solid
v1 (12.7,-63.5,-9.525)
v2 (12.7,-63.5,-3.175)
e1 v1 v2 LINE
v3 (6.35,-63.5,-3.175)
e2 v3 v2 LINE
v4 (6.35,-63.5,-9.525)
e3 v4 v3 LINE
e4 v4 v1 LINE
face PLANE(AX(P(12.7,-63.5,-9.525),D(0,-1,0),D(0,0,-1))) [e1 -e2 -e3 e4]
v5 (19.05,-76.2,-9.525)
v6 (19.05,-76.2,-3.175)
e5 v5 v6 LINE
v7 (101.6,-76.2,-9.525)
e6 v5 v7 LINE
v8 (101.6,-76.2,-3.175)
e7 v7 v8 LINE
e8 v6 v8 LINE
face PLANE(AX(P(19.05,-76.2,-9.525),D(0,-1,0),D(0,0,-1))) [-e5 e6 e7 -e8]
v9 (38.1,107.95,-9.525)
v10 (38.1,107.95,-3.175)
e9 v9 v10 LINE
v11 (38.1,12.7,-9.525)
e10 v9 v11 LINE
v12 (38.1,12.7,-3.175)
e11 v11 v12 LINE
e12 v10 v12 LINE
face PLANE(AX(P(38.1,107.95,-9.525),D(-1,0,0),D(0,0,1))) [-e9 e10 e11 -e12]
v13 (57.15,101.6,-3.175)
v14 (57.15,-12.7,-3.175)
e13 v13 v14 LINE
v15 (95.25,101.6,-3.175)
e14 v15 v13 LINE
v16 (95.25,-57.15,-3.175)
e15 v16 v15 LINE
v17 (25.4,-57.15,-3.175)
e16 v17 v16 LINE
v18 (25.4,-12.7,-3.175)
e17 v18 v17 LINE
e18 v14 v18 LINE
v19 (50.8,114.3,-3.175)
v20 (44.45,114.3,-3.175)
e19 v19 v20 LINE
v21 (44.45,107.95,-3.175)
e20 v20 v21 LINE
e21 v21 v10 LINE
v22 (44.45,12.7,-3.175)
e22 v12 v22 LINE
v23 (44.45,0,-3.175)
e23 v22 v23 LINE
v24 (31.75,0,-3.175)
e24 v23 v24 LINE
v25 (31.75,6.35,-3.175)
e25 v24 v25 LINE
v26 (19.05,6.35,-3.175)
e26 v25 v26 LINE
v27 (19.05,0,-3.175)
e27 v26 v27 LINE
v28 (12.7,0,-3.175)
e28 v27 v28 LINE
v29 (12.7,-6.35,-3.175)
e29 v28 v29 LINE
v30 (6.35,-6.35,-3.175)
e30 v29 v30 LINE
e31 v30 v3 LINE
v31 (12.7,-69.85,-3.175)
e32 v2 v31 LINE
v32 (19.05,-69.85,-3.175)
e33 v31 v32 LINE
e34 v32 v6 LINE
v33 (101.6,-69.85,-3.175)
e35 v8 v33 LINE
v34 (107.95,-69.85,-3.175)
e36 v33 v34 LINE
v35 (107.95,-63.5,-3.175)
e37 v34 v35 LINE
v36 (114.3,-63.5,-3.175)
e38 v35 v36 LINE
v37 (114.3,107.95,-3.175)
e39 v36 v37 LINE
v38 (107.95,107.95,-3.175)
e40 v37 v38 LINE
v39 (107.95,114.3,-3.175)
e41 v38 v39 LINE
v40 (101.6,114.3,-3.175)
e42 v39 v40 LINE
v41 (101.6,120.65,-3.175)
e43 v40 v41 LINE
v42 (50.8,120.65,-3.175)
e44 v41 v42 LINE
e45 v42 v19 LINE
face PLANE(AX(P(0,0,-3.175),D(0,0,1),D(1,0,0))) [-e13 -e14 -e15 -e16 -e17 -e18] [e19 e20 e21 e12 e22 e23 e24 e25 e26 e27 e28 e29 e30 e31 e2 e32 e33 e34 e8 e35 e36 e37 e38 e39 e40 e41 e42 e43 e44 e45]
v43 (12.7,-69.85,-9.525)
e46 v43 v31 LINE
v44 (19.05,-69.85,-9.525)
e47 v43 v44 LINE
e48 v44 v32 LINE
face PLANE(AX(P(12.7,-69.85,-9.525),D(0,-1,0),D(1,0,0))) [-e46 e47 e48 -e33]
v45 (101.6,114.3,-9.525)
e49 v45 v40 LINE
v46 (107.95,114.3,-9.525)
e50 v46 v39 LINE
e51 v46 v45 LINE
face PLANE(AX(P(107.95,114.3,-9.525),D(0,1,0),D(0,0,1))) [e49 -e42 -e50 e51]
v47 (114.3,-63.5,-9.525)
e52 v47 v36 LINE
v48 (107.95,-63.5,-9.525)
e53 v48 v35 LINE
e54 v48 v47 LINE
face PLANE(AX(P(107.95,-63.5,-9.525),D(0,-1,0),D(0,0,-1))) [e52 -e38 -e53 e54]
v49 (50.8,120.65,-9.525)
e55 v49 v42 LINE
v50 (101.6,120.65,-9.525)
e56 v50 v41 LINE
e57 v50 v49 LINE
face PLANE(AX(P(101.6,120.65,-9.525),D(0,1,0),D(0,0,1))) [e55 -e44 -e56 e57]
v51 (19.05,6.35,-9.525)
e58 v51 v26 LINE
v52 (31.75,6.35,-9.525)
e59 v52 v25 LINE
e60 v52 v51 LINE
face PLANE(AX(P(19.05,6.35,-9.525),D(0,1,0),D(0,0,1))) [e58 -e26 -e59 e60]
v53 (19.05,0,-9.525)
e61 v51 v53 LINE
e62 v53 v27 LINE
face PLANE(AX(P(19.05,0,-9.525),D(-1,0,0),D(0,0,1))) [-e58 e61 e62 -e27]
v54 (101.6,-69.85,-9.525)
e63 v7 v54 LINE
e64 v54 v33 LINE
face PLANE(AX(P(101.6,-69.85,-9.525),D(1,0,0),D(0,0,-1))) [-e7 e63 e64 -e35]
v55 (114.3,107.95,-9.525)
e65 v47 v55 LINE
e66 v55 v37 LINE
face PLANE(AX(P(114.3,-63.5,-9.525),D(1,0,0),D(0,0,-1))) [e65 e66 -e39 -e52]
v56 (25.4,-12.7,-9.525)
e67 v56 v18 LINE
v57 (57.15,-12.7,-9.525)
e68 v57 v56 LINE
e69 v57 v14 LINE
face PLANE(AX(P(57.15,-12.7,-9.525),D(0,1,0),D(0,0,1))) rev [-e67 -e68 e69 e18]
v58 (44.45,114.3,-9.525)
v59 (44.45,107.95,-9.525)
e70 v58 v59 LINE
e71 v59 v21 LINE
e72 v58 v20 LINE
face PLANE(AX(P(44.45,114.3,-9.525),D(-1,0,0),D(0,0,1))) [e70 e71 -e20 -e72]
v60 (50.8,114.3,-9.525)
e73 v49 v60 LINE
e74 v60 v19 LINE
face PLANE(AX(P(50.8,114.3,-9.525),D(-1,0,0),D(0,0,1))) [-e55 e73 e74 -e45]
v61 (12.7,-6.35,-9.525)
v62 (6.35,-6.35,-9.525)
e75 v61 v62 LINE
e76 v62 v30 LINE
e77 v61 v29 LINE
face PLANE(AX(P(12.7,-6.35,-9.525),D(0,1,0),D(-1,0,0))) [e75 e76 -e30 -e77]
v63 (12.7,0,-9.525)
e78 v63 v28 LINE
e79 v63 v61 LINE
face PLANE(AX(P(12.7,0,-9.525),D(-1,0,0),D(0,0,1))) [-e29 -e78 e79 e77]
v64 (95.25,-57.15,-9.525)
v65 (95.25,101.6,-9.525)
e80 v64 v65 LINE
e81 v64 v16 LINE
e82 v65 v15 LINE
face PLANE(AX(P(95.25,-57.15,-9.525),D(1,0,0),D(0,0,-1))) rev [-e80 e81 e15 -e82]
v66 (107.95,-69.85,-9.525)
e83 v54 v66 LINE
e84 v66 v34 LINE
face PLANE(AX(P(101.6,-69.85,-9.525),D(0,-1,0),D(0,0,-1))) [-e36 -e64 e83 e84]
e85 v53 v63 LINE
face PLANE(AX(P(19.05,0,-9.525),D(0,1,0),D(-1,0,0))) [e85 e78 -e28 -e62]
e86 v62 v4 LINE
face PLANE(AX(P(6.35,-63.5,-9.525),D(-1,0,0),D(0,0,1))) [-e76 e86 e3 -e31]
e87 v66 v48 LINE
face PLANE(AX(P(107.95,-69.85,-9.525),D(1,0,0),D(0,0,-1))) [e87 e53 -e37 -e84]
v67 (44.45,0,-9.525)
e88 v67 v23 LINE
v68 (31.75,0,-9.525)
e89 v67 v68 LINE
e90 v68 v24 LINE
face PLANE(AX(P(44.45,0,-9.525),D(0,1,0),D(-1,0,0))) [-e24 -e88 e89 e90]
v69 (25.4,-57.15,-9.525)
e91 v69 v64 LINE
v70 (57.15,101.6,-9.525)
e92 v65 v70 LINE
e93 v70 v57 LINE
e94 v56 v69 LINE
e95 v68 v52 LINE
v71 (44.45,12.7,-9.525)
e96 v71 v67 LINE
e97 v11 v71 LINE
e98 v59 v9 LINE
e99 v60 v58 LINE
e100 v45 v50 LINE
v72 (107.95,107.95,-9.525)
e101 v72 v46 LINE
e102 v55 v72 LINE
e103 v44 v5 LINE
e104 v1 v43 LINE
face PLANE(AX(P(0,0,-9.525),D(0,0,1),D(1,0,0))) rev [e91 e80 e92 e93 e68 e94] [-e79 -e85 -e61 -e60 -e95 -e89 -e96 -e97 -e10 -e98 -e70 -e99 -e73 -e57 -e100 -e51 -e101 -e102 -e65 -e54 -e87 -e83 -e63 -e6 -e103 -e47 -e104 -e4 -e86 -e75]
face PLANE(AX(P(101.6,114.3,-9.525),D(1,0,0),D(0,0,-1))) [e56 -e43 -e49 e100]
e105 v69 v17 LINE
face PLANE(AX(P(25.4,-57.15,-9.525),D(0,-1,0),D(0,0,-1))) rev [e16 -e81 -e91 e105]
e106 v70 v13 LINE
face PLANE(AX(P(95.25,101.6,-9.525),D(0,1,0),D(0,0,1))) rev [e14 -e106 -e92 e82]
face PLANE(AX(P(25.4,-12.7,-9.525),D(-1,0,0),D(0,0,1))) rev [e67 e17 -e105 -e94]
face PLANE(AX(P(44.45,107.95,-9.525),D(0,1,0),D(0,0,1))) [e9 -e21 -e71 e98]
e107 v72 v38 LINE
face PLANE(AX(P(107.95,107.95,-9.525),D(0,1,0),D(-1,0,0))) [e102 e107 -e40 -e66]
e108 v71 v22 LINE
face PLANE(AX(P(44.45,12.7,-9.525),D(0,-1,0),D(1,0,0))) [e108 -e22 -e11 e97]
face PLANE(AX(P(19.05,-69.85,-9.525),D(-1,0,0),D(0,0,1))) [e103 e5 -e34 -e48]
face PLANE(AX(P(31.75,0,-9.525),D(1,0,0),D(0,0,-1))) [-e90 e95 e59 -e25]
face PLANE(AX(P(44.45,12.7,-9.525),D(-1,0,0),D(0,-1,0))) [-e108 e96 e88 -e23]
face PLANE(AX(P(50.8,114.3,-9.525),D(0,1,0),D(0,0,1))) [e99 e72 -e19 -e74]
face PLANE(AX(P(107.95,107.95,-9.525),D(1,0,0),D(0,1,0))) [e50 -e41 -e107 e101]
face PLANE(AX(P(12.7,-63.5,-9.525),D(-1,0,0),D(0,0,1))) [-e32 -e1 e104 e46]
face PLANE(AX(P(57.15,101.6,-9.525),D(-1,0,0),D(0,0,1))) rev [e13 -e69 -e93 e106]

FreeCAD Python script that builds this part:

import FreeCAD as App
import Part
import Sketcher

V = App.Vector
Q = App.Units.Quantity


def add_polygon(sketch, points):
    """Adds a closed chain of lines whose ends are joined by coincident constraints."""
    first, n = sketch.GeometryCount, len(points)
    for a, b in zip(points, points[1:] + points[:1]):
        sketch.addGeometry(Part.LineSegment(App.Vector(*a, 0), App.Vector(*b, 0)), False)
    for i in range(n):
        sketch.addConstraint(Sketcher.Constraint("Coincident", first + i, 2, first + (i + 1) % n, 1))

doc = App.newDocument("Part")
body = doc.addObject("PartDesign::Body", "Body")

sketch1 = body.newObject("Sketcher::SketchObject", "Sketch")
sketch1.AttachmentSupport = (doc.getObject("XY_Plane"), [""])
sketch1.MapMode = "FlatFace"
sketch1.AttachmentOffset = App.Placement(V(0, 0, -0.125 * 25.4), App.Rotation())
add_polygon(sketch1, [(12.7, -69.85), (19.05, -69.85), (19.05, -76.2), (101.6, -76.2), (101.6, -69.85), (107.95, -69.85), (107.95, -63.5), (114.3, -63.5), (114.3, 107.95), (107.95, 107.95), (107.95, 114.3), (101.6, 114.3), (101.6, 120.65), (50.8, 120.65), (50.8, 114.3), (44.45, 114.3), (44.45, 107.95), (38.1, 107.95), (38.1, 12.7), (44.45, 12.7), (44.45, 0), (31.75, 0), (31.75, 6.35), (19.05, 6.35), (19.05, 0), (12.7, 0), (12.7, -6.35), (6.35, -6.35), (6.35, -63.5), (12.7, -63.5)])
sketch1.addConstraint([
    Sketcher.Constraint("Horizontal", 0),
    Sketcher.Constraint("Vertical", 1),
    Sketcher.Constraint("Horizontal", 2),
    Sketcher.Constraint("Vertical", 3),
    Sketcher.Constraint("Horizontal", 4),
    Sketcher.Constraint("Vertical", 5),
    Sketcher.Constraint("Horizontal", 6),
    Sketcher.Constraint("Vertical", 7),
    Sketcher.Constraint("Horizontal", 8),
    Sketcher.Constraint("Vertical", 9),
    Sketcher.Constraint("Horizontal", 10),
    Sketcher.Constraint("Vertical", 11),
    Sketcher.Constraint("Horizontal", 12),
    Sketcher.Constraint("Vertical", 13),
    Sketcher.Constraint("Horizontal", 14),
    Sketcher.Constraint("Vertical", 15),
    Sketcher.Constraint("Horizontal", 16),
    Sketcher.Constraint("Vertical", 17),
    Sketcher.Constraint("Horizontal", 18),
    Sketcher.Constraint("Vertical", 19),
    Sketcher.Constraint("Horizontal", 20),
    Sketcher.Constraint("Vertical", 21),
    Sketcher.Constraint("Horizontal", 22),
    Sketcher.Constraint("Vertical", 23),
    Sketcher.Constraint("Horizontal", 24),
    Sketcher.Constraint("Vertical", 25),
    Sketcher.Constraint("Horizontal", 26),
    Sketcher.Constraint("Vertical", 27),
    Sketcher.Constraint("Horizontal", 28),
    Sketcher.Constraint("Vertical", 29),
    Sketcher.Constraint("PointOnObject", 19, 2, -1),
    Sketcher.Constraint("PointOnObject", 23, 2, -1),
    Sketcher.Constraint("Horizontal", 0, 2, 3, 2),
    Sketcher.Constraint("Horizontal", 10, 2, 13, 2),
    Sketcher.Constraint("Horizontal", 8, 2, 15, 2),
    Sketcher.Constraint("Horizontal", 6, 2, 27, 2),
    Sketcher.Constraint("Vertical", 5, 2, 8, 2),
    Sketcher.Constraint("Vertical", 3, 2, 10, 2),
    Sketcher.Constraint("Vertical", 15, 2, 18, 2),
    Sketcher.Constraint("Vertical", 1, 2, 22, 2),
    Sketcher.Constraint("Vertical", 25, 2, 28, 2),
    Sketcher.Constraint("Equal", 0, 4),
    Sketcher.Constraint("Equal", 4, 6),
    Sketcher.Constraint("Equal", 10, 14),
    Sketcher.Constraint("Equal", 14, 16),
    Sketcher.Constraint("Equal", 20, 22),
    Sketcher.Constraint("Equal", 24, 26),
    Sketcher.Constraint("Equal", 28, 1),
    Sketcher.Constraint("Equal", 3, 5),
    Sketcher.Constraint("Equal", 5, 9),
    Sketcher.Constraint("Equal", 9, 11),
    Sketcher.Constraint("Equal", 22, 19),
    Sketcher.Constraint("Equal", 15, 21),
    Sketcher.Constraint("Equal", 23, 25),
    Sketcher.Constraint("DistanceX", 12, 2, 12, 1, Q("2 in")),
    Sketcher.Constraint("DistanceX", 20, 2, 20, 1, Q("0.5 in")),
    Sketcher.Constraint("DistanceY", 1, 2, -1, 1, Q("3 in")),
    Sketcher.Constraint("DistanceX", -1, 1, 2, 2, Q("4 in")),
    Sketcher.Constraint("DistanceY", 4, 2, 7, 2, Q("7 in")),
    Sketcher.Constraint("DistanceY", 17, 2, 14, 2, Q("4 in")),
])
pad1 = body.newObject("PartDesign::Pad", "Pad")
pad1.Profile = sketch1
pad1.Length = Q("0.25 in")
pad1.Reversed = True

sketch2 = body.newObject("Sketcher::SketchObject", "Sketch001")
sketch2.AttachmentSupport = (doc.getObject("XY_Plane"), [""])
sketch2.MapMode = "FlatFace"
sketch2.AttachmentOffset = App.Placement(V(0, 0, -0.125 * 25.4), App.Rotation())
add_polygon(sketch2, [(25.4, -57.15), (95.25, -57.15), (95.25, 101.6), (57.15, 101.6), (57.15, -12.7), (25.4, -12.7)])
sketch2.addConstraint([
    Sketcher.Constraint("Horizontal", 0),
    Sketcher.Constraint("Vertical", 1),
    Sketcher.Constraint("Horizontal", 2),
    Sketcher.Constraint("Vertical", 3),
    Sketcher.Constraint("Horizontal", 4),
    Sketcher.Constraint("Vertical", 5),
    Sketcher.Constraint("DistanceX", 2, 2, 2, 1, Q("1.5 in")),
    Sketcher.Constraint("DistanceY", 3, 2, 3, 1, Q("4.5 in")),
    Sketcher.Constraint("DistanceY", -1, 1, 1, 2, Q("4 in")),
    Sketcher.Constraint("DistanceX", -1, 1, 4, 2, Q("1 in")),
    Sketcher.Constraint("DistanceX", 0, 1, 0, 2, Q("2.75 in")),
    Sketcher.Constraint("DistanceY", 1, 1, 1, 2, Q("6.25 in")),
])
pocket1 = body.newObject("PartDesign::Pocket", "Pocket")
pocket1.Profile = sketch2
pocket1.Type = "ThroughAll"

doc.recompute()
